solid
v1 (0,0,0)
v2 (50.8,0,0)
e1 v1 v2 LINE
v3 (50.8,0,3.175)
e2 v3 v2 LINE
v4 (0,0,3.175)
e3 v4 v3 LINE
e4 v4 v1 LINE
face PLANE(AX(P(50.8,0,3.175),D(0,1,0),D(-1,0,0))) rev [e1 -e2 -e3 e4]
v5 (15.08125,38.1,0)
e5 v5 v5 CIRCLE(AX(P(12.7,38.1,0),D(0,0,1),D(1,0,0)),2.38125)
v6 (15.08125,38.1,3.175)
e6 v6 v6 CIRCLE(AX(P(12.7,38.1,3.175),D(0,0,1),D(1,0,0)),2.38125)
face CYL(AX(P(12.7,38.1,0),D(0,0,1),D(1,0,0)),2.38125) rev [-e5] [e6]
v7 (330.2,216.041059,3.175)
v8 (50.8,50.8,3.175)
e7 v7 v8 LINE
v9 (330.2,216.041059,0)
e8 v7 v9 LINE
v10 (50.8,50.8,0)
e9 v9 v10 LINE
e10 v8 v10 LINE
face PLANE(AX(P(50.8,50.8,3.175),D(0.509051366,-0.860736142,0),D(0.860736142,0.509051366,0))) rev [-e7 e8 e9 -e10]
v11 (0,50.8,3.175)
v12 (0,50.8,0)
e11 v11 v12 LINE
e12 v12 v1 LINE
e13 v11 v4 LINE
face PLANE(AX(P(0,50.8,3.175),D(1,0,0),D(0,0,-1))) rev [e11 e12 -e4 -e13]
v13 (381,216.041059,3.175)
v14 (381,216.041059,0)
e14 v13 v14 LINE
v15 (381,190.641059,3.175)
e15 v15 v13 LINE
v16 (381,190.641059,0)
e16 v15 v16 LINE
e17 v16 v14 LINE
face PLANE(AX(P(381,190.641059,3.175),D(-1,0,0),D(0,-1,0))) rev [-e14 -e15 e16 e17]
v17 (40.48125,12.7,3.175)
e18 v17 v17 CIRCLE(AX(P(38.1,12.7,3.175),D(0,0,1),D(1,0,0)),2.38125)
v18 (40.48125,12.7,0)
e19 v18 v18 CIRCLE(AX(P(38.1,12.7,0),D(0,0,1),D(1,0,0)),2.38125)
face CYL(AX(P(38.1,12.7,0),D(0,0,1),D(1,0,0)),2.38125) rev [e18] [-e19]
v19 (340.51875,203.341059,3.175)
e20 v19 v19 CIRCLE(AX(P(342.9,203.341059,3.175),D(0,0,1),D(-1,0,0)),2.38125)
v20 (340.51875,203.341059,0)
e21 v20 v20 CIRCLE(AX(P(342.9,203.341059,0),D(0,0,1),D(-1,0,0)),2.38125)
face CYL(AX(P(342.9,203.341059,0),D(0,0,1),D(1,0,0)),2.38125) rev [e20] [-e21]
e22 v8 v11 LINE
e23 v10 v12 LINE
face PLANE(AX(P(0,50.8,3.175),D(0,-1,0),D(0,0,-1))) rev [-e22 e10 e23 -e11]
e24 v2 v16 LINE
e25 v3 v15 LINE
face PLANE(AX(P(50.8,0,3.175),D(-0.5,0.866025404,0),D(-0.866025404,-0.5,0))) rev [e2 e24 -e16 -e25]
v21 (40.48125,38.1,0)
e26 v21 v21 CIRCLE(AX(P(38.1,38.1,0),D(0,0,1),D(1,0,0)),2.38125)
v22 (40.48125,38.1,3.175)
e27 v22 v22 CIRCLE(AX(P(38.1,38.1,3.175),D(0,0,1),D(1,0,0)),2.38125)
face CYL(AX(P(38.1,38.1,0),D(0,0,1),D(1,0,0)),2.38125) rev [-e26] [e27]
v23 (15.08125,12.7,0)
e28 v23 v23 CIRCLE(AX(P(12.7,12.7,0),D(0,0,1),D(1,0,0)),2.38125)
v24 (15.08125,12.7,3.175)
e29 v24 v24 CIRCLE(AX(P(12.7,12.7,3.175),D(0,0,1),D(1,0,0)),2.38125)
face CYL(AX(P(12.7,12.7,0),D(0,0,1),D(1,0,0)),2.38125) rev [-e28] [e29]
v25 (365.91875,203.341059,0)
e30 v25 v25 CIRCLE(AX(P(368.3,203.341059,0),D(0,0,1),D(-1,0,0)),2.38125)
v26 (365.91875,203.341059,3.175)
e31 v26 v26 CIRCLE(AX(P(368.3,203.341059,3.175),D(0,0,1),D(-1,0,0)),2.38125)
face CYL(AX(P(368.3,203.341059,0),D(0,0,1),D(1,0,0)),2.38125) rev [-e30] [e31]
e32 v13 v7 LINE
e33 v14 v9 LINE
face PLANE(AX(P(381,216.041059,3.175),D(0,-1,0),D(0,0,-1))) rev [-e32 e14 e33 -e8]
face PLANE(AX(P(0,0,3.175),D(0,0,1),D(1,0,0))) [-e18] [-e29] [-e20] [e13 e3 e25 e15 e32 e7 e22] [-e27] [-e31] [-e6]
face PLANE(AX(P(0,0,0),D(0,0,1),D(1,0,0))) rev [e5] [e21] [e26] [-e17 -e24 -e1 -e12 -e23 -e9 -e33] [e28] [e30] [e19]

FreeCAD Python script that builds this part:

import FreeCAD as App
import Part
import Sketcher
Q = App.Units.Quantity


def add_polygon(sketch, points):
    """Adds a closed chain of lines whose ends are joined by coincident constraints."""
    first, n = sketch.GeometryCount, len(points)
    for a, b in zip(points, points[1:] + points[:1]):
        sketch.addGeometry(Part.LineSegment(App.Vector(*a, 0), App.Vector(*b, 0)), False)
    for i in range(n):
        sketch.addConstraint(Sketcher.Constraint("Coincident", first + i, 2, first + (i + 1) % n, 1))

doc = App.newDocument("Part")
body = doc.addObject("PartDesign::Body", "Body")

sketch1 = doc.addObject("Sketcher::SketchObject", "Sketch")
body.addObject(sketch1)
sketch1.AttachmentSupport = (doc.XY_Plane, [""])
sketch1.MapMode = "FlatFace"
add_polygon(sketch1, [(51, 0), (381, 191), (381, 216), (330, 216), (51, 51), (0, 51), (0, 0)])
sketch1.addConstraint([
    Sketcher.Constraint("Vertical", 1),
    Sketcher.Constraint("Horizontal", 2),
    Sketcher.Constraint("Horizontal", 4),
    Sketcher.Constraint("Vertical", 5),
    Sketcher.Constraint("Horizontal", 6),
    Sketcher.Constraint("Coincident", 5, 2, -1, 1),
    Sketcher.Constraint("Vertical", 3, 2, 6, 2),
    Sketcher.Constraint("Equal", 2, 4),
    Sketcher.Constraint("Equal", 6, 5),
    Sketcher.Constraint("DistanceX", 2, 2, 2, 1, Q("2 in")),
    Sketcher.Constraint("DistanceY", 1, 1, 1, 2, Q("1 in")),
    Sketcher.Constraint("DistanceX", -1, 1, 0, 2, Q("15 in")),
    Sketcher.Constraint("Angle", 0, Q("30 deg")),
])
pad1 = doc.addObject("PartDesign::Pad", "Pad")
body.addObject(pad1)
pad1.Profile = sketch1
pad1.Length = Q("0.125 in")

sketch2 = doc.addObject("Sketcher::SketchObject", "Sketch001")
body.addObject(sketch2)
sketch2.AttachmentSupport = (doc.XY_Plane, [""])
sketch2.MapMode = "FlatFace"
sketch2.AttachmentOffset = App.Placement(App.Vector(0, 0, 0.125 * 25.4), App.Rotation())
sketch2.addGeometry([
    Part.Circle(App.Vector(12.7, 12.7, 0), App.Vector(0, 0, 1), 2.4),
    Part.Circle(App.Vector(12.7, 38.1, 0), App.Vector(0, 0, 1), 2.4),
    Part.Circle(App.Vector(342.9, 203.3, 0), App.Vector(0, 0, 1), 2.4),
    Part.Circle(App.Vector(368.3, 203.3, 0), App.Vector(0, 0, 1), 2.4),
    Part.Circle(App.Vector(38.1, 12.7, 0), App.Vector(0, 0, 1), 2.4),
    Part.Circle(App.Vector(38.1, 38.1, 0), App.Vector(0, 0, 1), 2.4),
], False)
sketch2.addConstraint([
    Sketcher.Constraint("Equal", 0, 1),
    Sketcher.Constraint("Equal", 1, 2),
    Sketcher.Constraint("Equal", 2, 3),
    Sketcher.Constraint("Equal", 3, 4),
    Sketcher.Constraint("Equal", 4, 5),
    Sketcher.Constraint("Horizontal", 2, 3, 3, 3),
    Sketcher.Constraint("Horizontal", 0, 3, 4, 3),
    Sketcher.Constraint("Horizontal", 1, 3, 5, 3),
    Sketcher.Constraint("Vertical", 0, 3, 1, 3),
    Sketcher.Constraint("Vertical", 4, 3, 5, 3),
    Sketcher.Constraint("Diameter", 0, Q("0.1875 in")),
    Sketcher.Constraint("DistanceY", 0, 3, 1, 3, Q("1 in")),
    Sketcher.Constraint("DistanceX", 1, 3, 2, 3, Q("13 in")),
    Sketcher.Constraint("DistanceX", 2, 3, 3, 3, Q("1 in")),
    Sketcher.Constraint("DistanceX", 0, 3, 4, 3, Q("1 in")),
    Sketcher.Constraint("DistanceX", -1, 1, 0, 3, Q("0.5 in")),
    Sketcher.Constraint("DistanceY", -1, 1, 0, 3, Q("0.5 in")),
    Sketcher.Constraint("DistanceY", -1, 1, 2, 3, Q("203.341059 mm")),
])
pocket1 = doc.addObject("PartDesign::Pocket", "Pocket")
body.addObject(pocket1)
pocket1.Profile = sketch2
pocket1.Type = "ThroughAll"

doc.recompute()
